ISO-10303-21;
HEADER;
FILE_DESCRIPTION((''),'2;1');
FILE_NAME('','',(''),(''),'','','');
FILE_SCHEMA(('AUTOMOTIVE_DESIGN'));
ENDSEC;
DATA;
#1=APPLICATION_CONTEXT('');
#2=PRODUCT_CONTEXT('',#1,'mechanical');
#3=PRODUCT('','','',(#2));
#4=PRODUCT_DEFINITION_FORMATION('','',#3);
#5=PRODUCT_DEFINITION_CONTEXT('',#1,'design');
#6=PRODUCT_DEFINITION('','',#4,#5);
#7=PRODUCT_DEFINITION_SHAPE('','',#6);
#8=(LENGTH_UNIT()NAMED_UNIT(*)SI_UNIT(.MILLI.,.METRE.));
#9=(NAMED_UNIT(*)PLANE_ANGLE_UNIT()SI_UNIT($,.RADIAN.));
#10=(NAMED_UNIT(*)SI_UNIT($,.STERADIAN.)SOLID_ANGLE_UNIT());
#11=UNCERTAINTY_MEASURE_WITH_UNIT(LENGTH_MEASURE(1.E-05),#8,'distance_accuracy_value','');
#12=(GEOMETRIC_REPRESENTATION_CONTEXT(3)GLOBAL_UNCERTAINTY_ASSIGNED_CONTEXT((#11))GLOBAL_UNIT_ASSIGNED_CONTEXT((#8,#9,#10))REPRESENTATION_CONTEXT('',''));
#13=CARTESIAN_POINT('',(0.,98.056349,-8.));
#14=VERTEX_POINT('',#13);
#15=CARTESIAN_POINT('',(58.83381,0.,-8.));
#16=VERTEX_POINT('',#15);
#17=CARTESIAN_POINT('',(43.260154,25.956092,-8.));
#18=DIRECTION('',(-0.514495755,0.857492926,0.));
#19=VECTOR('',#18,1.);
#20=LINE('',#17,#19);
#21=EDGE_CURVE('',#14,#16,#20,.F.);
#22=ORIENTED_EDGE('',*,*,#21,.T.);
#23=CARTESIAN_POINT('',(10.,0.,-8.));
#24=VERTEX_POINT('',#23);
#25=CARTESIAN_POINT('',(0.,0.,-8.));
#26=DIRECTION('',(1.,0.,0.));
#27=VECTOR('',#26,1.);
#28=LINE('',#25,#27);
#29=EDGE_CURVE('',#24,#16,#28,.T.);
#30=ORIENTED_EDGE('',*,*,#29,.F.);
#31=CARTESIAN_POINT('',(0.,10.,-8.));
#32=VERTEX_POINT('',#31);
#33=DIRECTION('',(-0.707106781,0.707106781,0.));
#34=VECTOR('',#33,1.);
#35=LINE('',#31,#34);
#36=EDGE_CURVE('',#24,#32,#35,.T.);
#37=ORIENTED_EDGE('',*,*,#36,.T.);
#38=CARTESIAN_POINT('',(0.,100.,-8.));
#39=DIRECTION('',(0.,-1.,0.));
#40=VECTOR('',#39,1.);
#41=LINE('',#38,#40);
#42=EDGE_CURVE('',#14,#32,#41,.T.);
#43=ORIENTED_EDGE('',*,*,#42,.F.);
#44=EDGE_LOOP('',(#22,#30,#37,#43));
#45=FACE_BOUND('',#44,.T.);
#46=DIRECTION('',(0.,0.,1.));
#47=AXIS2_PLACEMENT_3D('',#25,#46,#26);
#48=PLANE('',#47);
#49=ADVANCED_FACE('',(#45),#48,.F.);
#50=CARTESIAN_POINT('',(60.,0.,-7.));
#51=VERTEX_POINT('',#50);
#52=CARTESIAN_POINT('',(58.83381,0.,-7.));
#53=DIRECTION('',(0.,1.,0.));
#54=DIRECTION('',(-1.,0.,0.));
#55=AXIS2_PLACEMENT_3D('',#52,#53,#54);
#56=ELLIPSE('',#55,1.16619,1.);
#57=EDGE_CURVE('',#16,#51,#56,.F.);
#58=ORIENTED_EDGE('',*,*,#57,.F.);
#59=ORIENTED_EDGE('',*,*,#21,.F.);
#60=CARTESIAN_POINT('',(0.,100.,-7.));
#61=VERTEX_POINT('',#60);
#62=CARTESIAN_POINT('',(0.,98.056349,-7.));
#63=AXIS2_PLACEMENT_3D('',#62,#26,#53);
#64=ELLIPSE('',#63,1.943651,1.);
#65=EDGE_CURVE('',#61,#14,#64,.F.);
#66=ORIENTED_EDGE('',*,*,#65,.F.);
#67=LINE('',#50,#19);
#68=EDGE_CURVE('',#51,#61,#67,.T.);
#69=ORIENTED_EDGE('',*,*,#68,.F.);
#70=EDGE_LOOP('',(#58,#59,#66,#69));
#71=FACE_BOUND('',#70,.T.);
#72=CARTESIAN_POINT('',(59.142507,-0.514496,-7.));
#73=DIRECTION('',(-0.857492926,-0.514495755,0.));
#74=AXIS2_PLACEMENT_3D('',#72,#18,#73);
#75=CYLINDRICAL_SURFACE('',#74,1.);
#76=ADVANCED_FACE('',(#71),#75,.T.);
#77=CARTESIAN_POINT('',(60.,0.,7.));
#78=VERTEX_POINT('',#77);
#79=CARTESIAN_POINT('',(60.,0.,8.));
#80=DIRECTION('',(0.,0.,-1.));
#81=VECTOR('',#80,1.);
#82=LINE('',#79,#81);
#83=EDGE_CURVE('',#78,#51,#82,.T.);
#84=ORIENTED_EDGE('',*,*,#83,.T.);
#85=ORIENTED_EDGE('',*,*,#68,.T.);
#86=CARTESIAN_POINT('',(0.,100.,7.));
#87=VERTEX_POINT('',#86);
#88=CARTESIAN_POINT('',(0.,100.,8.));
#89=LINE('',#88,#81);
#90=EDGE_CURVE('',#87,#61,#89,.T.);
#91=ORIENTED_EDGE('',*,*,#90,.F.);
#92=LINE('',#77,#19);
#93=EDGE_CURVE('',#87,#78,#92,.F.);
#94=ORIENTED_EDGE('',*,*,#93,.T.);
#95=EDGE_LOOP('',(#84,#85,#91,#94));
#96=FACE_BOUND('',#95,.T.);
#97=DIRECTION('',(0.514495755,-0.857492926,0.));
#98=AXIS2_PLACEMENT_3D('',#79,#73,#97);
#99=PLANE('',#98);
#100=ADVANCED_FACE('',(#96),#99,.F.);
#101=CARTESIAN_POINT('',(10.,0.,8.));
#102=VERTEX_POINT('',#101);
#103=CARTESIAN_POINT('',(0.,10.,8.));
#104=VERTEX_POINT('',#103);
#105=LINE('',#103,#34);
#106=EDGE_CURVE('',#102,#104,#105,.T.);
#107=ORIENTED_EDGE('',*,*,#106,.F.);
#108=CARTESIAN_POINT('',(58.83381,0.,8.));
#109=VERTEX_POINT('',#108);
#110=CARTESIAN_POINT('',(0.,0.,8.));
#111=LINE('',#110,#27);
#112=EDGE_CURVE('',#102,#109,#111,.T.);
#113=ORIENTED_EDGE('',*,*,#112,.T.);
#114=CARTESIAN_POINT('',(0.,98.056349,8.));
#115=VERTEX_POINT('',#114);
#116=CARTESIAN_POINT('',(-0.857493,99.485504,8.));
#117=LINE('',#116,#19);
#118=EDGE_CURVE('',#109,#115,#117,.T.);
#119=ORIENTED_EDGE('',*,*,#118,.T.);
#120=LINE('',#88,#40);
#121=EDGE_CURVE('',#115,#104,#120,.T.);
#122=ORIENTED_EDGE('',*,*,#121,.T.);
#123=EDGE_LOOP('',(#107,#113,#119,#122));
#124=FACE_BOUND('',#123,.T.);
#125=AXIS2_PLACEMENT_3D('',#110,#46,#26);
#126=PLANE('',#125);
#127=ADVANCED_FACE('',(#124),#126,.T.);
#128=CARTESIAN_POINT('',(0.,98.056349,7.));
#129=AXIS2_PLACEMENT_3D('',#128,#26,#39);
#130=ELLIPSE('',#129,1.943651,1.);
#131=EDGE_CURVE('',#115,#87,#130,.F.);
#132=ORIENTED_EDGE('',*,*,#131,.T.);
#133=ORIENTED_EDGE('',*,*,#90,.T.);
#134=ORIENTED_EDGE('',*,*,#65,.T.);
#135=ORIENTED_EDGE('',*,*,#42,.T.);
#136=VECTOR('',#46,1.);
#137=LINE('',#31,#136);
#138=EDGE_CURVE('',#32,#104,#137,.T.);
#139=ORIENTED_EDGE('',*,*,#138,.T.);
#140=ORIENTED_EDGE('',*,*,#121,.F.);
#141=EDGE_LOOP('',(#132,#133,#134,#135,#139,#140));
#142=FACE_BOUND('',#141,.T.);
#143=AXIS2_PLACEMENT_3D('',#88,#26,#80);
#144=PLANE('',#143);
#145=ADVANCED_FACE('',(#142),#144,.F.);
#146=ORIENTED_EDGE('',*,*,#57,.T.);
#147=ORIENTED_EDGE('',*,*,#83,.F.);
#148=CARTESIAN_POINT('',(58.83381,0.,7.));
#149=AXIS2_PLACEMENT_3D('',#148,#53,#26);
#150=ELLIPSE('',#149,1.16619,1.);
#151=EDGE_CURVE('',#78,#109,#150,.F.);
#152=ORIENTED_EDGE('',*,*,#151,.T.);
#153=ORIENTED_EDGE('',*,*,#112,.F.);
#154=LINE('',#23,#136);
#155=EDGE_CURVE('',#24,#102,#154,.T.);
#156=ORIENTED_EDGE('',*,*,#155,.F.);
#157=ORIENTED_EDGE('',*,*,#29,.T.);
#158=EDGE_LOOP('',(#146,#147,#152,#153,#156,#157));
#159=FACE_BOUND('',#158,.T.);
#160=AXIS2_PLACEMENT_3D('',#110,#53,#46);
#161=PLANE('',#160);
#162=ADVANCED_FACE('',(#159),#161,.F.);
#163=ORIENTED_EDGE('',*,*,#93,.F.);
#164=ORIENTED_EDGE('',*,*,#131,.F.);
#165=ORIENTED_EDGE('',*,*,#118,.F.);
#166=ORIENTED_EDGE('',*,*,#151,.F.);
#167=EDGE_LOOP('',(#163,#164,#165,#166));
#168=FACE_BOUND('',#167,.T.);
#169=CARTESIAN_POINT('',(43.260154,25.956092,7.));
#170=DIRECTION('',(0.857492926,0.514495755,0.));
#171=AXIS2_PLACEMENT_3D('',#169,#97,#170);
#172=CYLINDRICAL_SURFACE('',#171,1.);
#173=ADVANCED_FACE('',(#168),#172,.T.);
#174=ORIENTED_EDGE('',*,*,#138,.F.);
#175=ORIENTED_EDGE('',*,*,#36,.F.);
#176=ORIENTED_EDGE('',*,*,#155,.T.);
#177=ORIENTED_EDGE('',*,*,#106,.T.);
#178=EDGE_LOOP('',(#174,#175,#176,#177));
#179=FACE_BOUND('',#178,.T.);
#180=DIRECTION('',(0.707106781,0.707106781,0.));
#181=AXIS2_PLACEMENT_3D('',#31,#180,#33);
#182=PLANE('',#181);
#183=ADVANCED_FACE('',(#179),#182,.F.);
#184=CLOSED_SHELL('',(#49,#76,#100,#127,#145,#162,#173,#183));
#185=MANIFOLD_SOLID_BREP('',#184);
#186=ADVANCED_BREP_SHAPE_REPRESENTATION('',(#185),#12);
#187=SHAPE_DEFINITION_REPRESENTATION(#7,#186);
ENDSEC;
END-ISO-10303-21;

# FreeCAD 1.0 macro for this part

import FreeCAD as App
import Part
import Sketcher
from FreeCAD import Vector
Q = App.Units.Quantity


def edges_at(feature, points):
    """Names of the edges that pass closest to the given points."""
    edges = feature.Shape.Edges
    near = lambda p: min(range(len(edges)), key=lambda i: edges[i].distToShape(Part.Vertex(*p))[0])
    return sorted({f"Edge{near(p) + 1}" for p in points})

doc = App.newDocument("Part")
body = doc.addObject("PartDesign::Body", "Body")

# Sketch on XY plane
sketch1 = body.newObject("Sketcher::SketchObject", "Sketch")
sketch1.AttachmentSupport = (doc.getObject("XY_Plane"), [""])
sketch1.MapMode = "FlatFace"
sketch1.addGeometry([
    Part.LineSegment(Vector(0, 0, 0), Vector(60, 0, 0)),
    Part.LineSegment(Vector(60, 0, 0), Vector(0, 100, 0)),
    Part.LineSegment(Vector(0, 100, 0), Vector(0, 0, 0)),
], False)
sketch1.addConstraint([
    Sketcher.Constraint("Coincident", 0, 2, 1, 1),
    Sketcher.Constraint("Coincident", 1, 2, 2, 1),
    Sketcher.Constraint("Coincident", 2, 2, 0, 1),
    Sketcher.Constraint("Horizontal", 0),
    Sketcher.Constraint("Vertical", 2),
    Sketcher.Constraint("Coincident", 2, 2, -1, 1),
    Sketcher.Constraint("DistanceX", 0, 1, 0, 2, Q("60 mm")),
    Sketcher.Constraint("DistanceY", 2, 2, 2, 1, Q("100 mm")),
])
pad1 = body.newObject("PartDesign::Pad", "Pad")
pad1.Profile = sketch1
pad1.Length = 16
pad1.Midplane = True

# Sketch on XY plane
sketch2 = body.newObject("Sketcher::SketchObject", "Sketch001")
sketch2.AttachmentSupport = (doc.getObject("XY_Plane"), [""])
sketch2.MapMode = "FlatFace"
sketch2.AttachmentOffset = App.Placement(Vector(0, 0, 8), App.Rotation())
sketch2.addGeometry([
    Part.LineSegment(Vector(0, 10, 0), Vector(0, 0, 0)),
    Part.LineSegment(Vector(0, 0, 0), Vector(10, 0, 0)),
    Part.LineSegment(Vector(10, 0, 0), Vector(0, 10, 0)),
], False)
sketch2.addConstraint([
    Sketcher.Constraint("Coincident", 0, 2, 1, 1),
    Sketcher.Constraint("Coincident", 1, 2, 2, 1),
    Sketcher.Constraint("Coincident", 2, 2, 0, 1),
    Sketcher.Constraint("Vertical", 0),
    Sketcher.Constraint("Horizontal", 1),
    Sketcher.Constraint("Coincident", 0, 2, -1, 1),
    Sketcher.Constraint("Equal", 1, 0),
    Sketcher.Constraint("DistanceX", 1, 1, 1, 2, Q("10 mm")),
])
pocket1 = body.newObject("PartDesign::Pocket", "Pocket")
pocket1.Profile = sketch2
pocket1.Type = "ThroughAll"
doc.recompute()

fillet = body.newObject("PartDesign::Fillet", "Fillet")
fillet.Base = (pocket1, edges_at(pocket1, [(30, 50, 8), (30, 50, -8)]))
fillet.Radius = 1

doc.recompute()
